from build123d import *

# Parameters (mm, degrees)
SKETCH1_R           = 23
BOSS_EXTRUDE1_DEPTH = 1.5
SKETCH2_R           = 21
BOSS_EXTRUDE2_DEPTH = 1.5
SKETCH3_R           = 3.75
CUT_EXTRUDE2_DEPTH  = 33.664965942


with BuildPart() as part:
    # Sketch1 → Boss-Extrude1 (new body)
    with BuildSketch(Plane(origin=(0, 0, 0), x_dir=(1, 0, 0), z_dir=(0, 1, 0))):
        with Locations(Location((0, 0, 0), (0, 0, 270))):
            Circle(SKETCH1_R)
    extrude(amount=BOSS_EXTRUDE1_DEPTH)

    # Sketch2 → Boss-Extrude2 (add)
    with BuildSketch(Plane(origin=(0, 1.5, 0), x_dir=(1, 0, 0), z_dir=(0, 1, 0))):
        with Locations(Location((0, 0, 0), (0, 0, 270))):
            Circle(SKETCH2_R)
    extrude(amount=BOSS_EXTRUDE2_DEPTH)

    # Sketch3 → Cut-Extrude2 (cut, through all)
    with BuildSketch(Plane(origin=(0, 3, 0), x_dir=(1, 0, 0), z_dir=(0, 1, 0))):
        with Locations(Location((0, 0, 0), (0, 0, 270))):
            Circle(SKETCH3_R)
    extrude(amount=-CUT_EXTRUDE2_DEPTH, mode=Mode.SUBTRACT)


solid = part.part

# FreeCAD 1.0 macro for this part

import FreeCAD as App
import Part
import Sketcher

doc = App.newDocument("Part")
body = doc.addObject("PartDesign::Body", "Body")

sketch1 = body.newObject("Sketcher::SketchObject", "Sketch")
sketch1.AttachmentSupport = (doc.getObject("XZ_Plane"), [""])
sketch1.MapMode = "FlatFace"
sketch1.addGeometry(Part.Circle(App.Vector(0, 0, 0), App.Vector(0, 0, 1), 23), False)
sketch1.addConstraint([
    Sketcher.Constraint("Coincident", 0, 3, -1, 1),
    Sketcher.Constraint("Diameter", 0, 46.0),
])
pad1 = body.newObject("PartDesign::Pad", "Pad")
pad1.Profile = sketch1
pad1.Length = 1.5
pad1.Reversed = True

sketch2 = body.newObject("Sketcher::SketchObject", "Sketch001")
sketch2.AttachmentSupport = (doc.getObject("XZ_Plane"), [""])
sketch2.MapMode = "FlatFace"
sketch2.AttachmentOffset = App.Placement(App.Vector(0, 0, -1.5), App.Rotation())
sketch2.addGeometry(Part.Circle(App.Vector(0, 0, 0), App.Vector(0, 0, 1), 21), False)
sketch2.addConstraint([
    Sketcher.Constraint("Coincident", 0, 3, -1, 1),
    Sketcher.Constraint("Diameter", 0, 42.0),
])
pad2 = body.newObject("PartDesign::Pad", "Pad001")
pad2.Profile = sketch2
pad2.Length = 1.5
pad2.Reversed = True

sketch3 = body.newObject("Sketcher::SketchObject", "Sketch002")
sketch3.AttachmentSupport = (doc.getObject("XZ_Plane"), [""])
sketch3.MapMode = "FlatFace"
sketch3.AttachmentOffset = App.Placement(App.Vector(0, 0, -3), App.Rotation())
sketch3.addGeometry(Part.Circle(App.Vector(0, 0, 0), App.Vector(0, 0, 1), 3.8), False)
sketch3.addConstraint([
    Sketcher.Constraint("Coincident", 0, 3, -1, 1),
    Sketcher.Constraint("Diameter", 0, 7.5),
])
pocket1 = body.newObject("PartDesign::Pocket", "Pocket")
pocket1.Profile = sketch3
pocket1.Type = "ThroughAll"
pocket1.Reversed = True

doc.recompute()
